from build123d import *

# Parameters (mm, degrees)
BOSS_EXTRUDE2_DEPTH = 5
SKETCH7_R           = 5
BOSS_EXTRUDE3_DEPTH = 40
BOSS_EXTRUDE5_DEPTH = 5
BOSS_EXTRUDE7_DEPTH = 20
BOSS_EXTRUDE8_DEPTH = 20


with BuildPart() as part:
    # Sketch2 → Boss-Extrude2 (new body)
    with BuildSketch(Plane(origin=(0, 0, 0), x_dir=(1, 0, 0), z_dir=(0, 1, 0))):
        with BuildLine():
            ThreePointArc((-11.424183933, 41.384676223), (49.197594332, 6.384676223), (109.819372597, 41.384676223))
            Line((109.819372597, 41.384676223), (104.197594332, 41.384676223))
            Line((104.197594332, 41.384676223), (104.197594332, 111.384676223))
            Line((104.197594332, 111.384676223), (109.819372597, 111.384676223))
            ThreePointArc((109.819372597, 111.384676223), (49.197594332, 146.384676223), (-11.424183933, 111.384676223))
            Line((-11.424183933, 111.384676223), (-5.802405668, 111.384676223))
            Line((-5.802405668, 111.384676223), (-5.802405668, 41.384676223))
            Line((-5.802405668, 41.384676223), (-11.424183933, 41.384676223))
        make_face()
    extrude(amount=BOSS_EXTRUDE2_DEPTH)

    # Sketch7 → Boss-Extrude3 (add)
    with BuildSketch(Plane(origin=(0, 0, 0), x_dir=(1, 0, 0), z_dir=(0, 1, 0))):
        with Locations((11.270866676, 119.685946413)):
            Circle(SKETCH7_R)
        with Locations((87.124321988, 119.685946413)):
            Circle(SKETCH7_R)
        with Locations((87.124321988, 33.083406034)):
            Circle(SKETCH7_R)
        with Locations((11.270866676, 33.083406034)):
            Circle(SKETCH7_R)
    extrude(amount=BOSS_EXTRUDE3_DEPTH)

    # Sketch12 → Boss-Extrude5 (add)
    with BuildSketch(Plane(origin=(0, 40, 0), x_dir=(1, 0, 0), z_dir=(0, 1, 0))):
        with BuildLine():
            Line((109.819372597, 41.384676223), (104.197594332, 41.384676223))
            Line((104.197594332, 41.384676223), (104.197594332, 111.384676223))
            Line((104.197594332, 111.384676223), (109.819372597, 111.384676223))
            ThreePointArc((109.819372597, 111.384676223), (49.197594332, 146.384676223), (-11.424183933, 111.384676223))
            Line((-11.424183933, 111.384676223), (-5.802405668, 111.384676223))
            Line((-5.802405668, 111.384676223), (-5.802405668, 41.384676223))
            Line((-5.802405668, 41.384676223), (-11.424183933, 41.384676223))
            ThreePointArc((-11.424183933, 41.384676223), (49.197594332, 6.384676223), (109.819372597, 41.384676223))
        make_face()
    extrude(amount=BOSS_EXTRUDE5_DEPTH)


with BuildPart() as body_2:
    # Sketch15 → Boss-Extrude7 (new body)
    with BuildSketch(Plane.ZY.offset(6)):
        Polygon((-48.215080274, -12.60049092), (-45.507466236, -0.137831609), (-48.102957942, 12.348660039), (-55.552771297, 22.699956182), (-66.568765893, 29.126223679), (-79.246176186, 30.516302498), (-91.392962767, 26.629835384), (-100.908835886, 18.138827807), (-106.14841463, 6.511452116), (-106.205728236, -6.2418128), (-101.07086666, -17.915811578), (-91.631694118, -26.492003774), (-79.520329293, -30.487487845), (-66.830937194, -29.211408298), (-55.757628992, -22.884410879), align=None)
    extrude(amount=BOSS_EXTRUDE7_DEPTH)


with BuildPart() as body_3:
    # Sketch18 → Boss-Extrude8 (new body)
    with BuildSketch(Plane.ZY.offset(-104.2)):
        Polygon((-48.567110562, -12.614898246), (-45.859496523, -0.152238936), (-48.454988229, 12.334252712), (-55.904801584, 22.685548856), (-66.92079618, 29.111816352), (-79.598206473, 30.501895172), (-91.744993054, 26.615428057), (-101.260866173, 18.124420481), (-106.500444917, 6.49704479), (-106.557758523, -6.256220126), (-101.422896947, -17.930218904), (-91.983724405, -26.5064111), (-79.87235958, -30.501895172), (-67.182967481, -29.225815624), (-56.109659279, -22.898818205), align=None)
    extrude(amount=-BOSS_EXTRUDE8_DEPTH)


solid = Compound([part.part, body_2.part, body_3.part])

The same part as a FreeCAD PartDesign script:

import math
import FreeCAD as App
import Part
import Sketcher
from FreeCAD import Vector
Q = App.Units.Quantity

doc = App.newDocument("Part")
body = doc.addObject("PartDesign::Body", "Body")

sketch1 = body.newObject("Sketcher::SketchObject", "Sketch")
sketch1.AttachmentSupport = (doc.getObject("XZ_Plane"), [""])
sketch1.MapMode = "FlatFace"
sketch1.addGeometry([
    Part.ArcOfCircle(Part.Circle(Vector(49.197594, -76.384676, 0), Vector(0, 0, 1), 70), math.radians(30), math.radians(150)),
    Part.LineSegment(Vector(109.819373, -41.384676, 0), Vector(104.197594, -41.384676, 0)),
    Part.LineSegment(Vector(104.197594, -41.384676, 0), Vector(104.197594, -111.384676, 0)),
    Part.LineSegment(Vector(104.197594, -111.384676, 0), Vector(109.819373, -111.384676, 0)),
    Part.ArcOfCircle(Part.Circle(Vector(49.197594, -76.384676, 0), Vector(0, 0, 1), 70), math.radians(-150), math.radians(-30)),
    Part.LineSegment(Vector(-11.424184, -111.384676, 0), Vector(-5.802406, -111.384676, 0)),
    Part.LineSegment(Vector(-5.802406, -111.384676, 0), Vector(-5.802406, -41.384676, 0)),
    Part.LineSegment(Vector(-5.802406, -41.384676, 0), Vector(-11.424184, -41.384676, 0)),
], False)
sketch1.addConstraint([
    Sketcher.Constraint("Coincident", 0, 1, 1, 1),
    Sketcher.Constraint("Coincident", 1, 2, 2, 1),
    Sketcher.Constraint("Coincident", 2, 2, 3, 1),
    Sketcher.Constraint("Coincident", 3, 2, 4, 2),
    Sketcher.Constraint("Coincident", 4, 1, 5, 1),
    Sketcher.Constraint("Coincident", 5, 2, 6, 1),
    Sketcher.Constraint("Coincident", 6, 2, 7, 1),
    Sketcher.Constraint("Coincident", 7, 2, 0, 2),
    Sketcher.Constraint("Horizontal", 1),
    Sketcher.Constraint("Vertical", 2),
    Sketcher.Constraint("Horizontal", 3),
    Sketcher.Constraint("Horizontal", 5),
    Sketcher.Constraint("Vertical", 6),
    Sketcher.Constraint("Horizontal", 7),
    Sketcher.Constraint("Coincident", 4, 3, 0, 3),
    Sketcher.Constraint("Equal", 0, 4),
    Sketcher.Constraint("Horizontal", 3, 2, 4, 1),
    Sketcher.Constraint("Horizontal", 1, 2, 6, 2),
    Sketcher.Constraint("Vertical", 0, 1, 3, 2),
    Sketcher.Constraint("Equal", 3, 5),
    Sketcher.Constraint("Radius", 0, Q("70 mm")),
    Sketcher.Constraint("DistanceY", 2, 2, 2, 1, Q("70 mm")),
    Sketcher.Constraint("DistanceX", 0, 3, 1, 2, Q("55 mm")),
    Sketcher.Constraint("DistanceX", -1, 1, 0, 3, Q("49.197594 mm")),
    Sketcher.Constraint("DistanceY", 0, 3, -1, 1, Q("76.384676 mm")),
])
pad1 = body.newObject("PartDesign::Pad", "Pad")
pad1.Profile = sketch1
pad1.Length = 5
pad1.Reversed = True

sketch2 = body.newObject("Sketcher::SketchObject", "Sketch001")
sketch2.AttachmentSupport = (doc.getObject("XZ_Plane"), [""])
sketch2.MapMode = "FlatFace"
sketch2.addGeometry([
    Part.Circle(Vector(11.270867, -119.685946, 0), Vector(0, 0, 1), 5),
    Part.Circle(Vector(87.124322, -119.685946, 0), Vector(0, 0, 1), 5),
    Part.Circle(Vector(87.124322, -33.083406, 0), Vector(0, 0, 1), 5),
    Part.Circle(Vector(11.270867, -33.083406, 0), Vector(0, 0, 1), 5),
], False)
sketch2.addConstraint([
    Sketcher.Constraint("Equal", 0, 1),
    Sketcher.Constraint("Equal", 1, 2),
    Sketcher.Constraint("Equal", 2, 3),
    Sketcher.Constraint("Horizontal", 0, 3, 1, 3),
    Sketcher.Constraint("Horizontal", 2, 3, 3, 3),
    Sketcher.Constraint("Vertical", 1, 3, 2, 3),
    Sketcher.Constraint("Vertical", 0, 3, 3, 3),
    Sketcher.Constraint("Diameter", 0, Q("10 mm")),
    Sketcher.Constraint("DistanceX", -1, 1, 1, 3, Q("87.124322 mm")),
    Sketcher.Constraint("DistanceY", 1, 3, 2, 3, Q("86.60254 mm")),
    Sketcher.Constraint("DistanceX", -1, 1, 0, 3, Q("11.270867 mm")),
    Sketcher.Constraint("DistanceY", 0, 3, -1, 1, Q("119.685946 mm")),
])
pad2 = body.newObject("PartDesign::Pad", "Pad001")
pad2.Profile = sketch2
pad2.Length = 40
pad2.Reversed = True

sketch3 = body.newObject("Sketcher::SketchObject", "Sketch002")
sketch3.AttachmentSupport = (doc.getObject("XZ_Plane"), [""])
sketch3.MapMode = "FlatFace"
sketch3.AttachmentOffset = App.Placement(Vector(0, 0, -40), App.Rotation())
sketch3.addGeometry([
    Part.LineSegment(Vector(109.819373, -41.384676, 0), Vector(104.197594, -41.384676, 0)),
    Part.LineSegment(Vector(104.197594, -41.384676, 0), Vector(104.197594, -111.384676, 0)),
    Part.LineSegment(Vector(104.197594, -111.384676, 0), Vector(109.819373, -111.384676, 0)),
    Part.ArcOfCircle(Part.Circle(Vector(49.197594, -76.384676, 0), Vector(0, 0, 1), 70), math.radians(-150), math.radians(-30)),
    Part.LineSegment(Vector(-11.424184, -111.384676, 0), Vector(-5.802406, -111.384676, 0)),
    Part.LineSegment(Vector(-5.802406, -111.384676, 0), Vector(-5.802406, -41.384676, 0)),
    Part.LineSegment(Vector(-5.802406, -41.384676, 0), Vector(-11.424184, -41.384676, 0)),
    Part.ArcOfCircle(Part.Circle(Vector(49.197594, -76.384676, 0), Vector(0, 0, 1), 70), math.radians(30), math.radians(150)),
], False)
sketch3.addConstraint([
    Sketcher.Constraint("Coincident", 0, 2, 1, 1),
    Sketcher.Constraint("Coincident", 1, 2, 2, 1),
    Sketcher.Constraint("Coincident", 2, 2, 3, 2),
    Sketcher.Constraint("Coincident", 3, 1, 4, 1),
    Sketcher.Constraint("Coincident", 4, 2, 5, 1),
    Sketcher.Constraint("Coincident", 5, 2, 6, 1),
    Sketcher.Constraint("Coincident", 6, 2, 7, 2),
    Sketcher.Constraint("Coincident", 7, 1, 0, 1),
    Sketcher.Constraint("Horizontal", 0),
    Sketcher.Constraint("Vertical", 1),
    Sketcher.Constraint("Horizontal", 2),
    Sketcher.Constraint("Horizontal", 4),
    Sketcher.Constraint("Vertical", 5),
    Sketcher.Constraint("Horizontal", 6),
    Sketcher.Constraint("Coincident", 7, 3, 3, 3),
    Sketcher.Constraint("Equal", 3, 7),
    Sketcher.Constraint("Horizontal", 2, 2, 3, 1),
    Sketcher.Constraint("Horizontal", 0, 2, 5, 2),
    Sketcher.Constraint("Vertical", 3, 1, 6, 2),
    Sketcher.Constraint("Equal", 2, 4),
    Sketcher.Constraint("Radius", 3, Q("70 mm")),
    Sketcher.Constraint("DistanceY", 1, 2, 1, 1, Q("70 mm")),
    Sketcher.Constraint("DistanceX", 3, 3, 0, 2, Q("55 mm")),
    Sketcher.Constraint("DistanceX", -1, 1, 3, 3, Q("49.197594 mm")),
    Sketcher.Constraint("DistanceY", 3, 3, -1, 1, Q("76.384676 mm")),
])
pad3 = body.newObject("PartDesign::Pad", "Pad002")
pad3.Profile = sketch3
pad3.Length = 5
pad3.Reversed = True
body2 = doc.addObject("PartDesign::Body", "Body001")

sketch4 = body2.newObject("Sketcher::SketchObject", "Sketch003")
sketch4.AttachmentSupport = (doc.getObject("YZ_Plane001"), [""])
sketch4.MapMode = "FlatFace"
sketch4.AttachmentOffset = App.Placement(Vector(0, 0, -6), App.Rotation())
sketch4.addGeometry([
    Part.LineSegment(Vector(-12.600491, -48.21508, 0), Vector(-0.137832, -45.507466, 0)),
    Part.LineSegment(Vector(-0.137832, -45.507466, 0), Vector(12.34866, -48.102958, 0)),
    Part.LineSegment(Vector(12.34866, -48.102958, 0), Vector(22.699956, -55.552771, 0)),
    Part.LineSegment(Vector(22.699956, -55.552771, 0), Vector(29.126224, -66.568766, 0)),
    Part.LineSegment(Vector(29.126224, -66.568766, 0), Vector(30.516302, -79.246176, 0)),
    Part.LineSegment(Vector(30.516302, -79.246176, 0), Vector(26.629835, -91.392963, 0)),
    Part.LineSegment(Vector(26.629835, -91.392963, 0), Vector(18.138828, -100.908836, 0)),
    Part.LineSegment(Vector(18.138828, -100.908836, 0), Vector(6.511452, -106.148415, 0)),
    Part.LineSegment(Vector(6.511452, -106.148415, 0), Vector(-6.241813, -106.205728, 0)),
    Part.LineSegment(Vector(-6.241813, -106.205728, 0), Vector(-17.915812, -101.070867, 0)),
    Part.LineSegment(Vector(-17.915812, -101.070867, 0), Vector(-26.492004, -91.631694, 0)),
    Part.LineSegment(Vector(-26.492004, -91.631694, 0), Vector(-30.487488, -79.520329, 0)),
    Part.LineSegment(Vector(-30.487488, -79.520329, 0), Vector(-29.211408, -66.830937, 0)),
    Part.LineSegment(Vector(-29.211408, -66.830937, 0), Vector(-22.884411, -55.757629, 0)),
    Part.LineSegment(Vector(-22.884411, -55.757629, 0), Vector(-12.600491, -48.21508, 0)),
], False)
sketch4.addConstraint([
    Sketcher.Constraint("Coincident", 0, 2, 1, 1),
    Sketcher.Constraint("Coincident", 1, 2, 2, 1),
    Sketcher.Constraint("Coincident", 2, 2, 3, 1),
    Sketcher.Constraint("Coincident", 3, 2, 4, 1),
    Sketcher.Constraint("Coincident", 4, 2, 5, 1),
    Sketcher.Constraint("Coincident", 5, 2, 6, 1),
    Sketcher.Constraint("Coincident", 6, 2, 7, 1),
    Sketcher.Constraint("Coincident", 7, 2, 8, 1),
    Sketcher.Constraint("Coincident", 8, 2, 9, 1),
    Sketcher.Constraint("Coincident", 9, 2, 10, 1),
    Sketcher.Constraint("Coincident", 10, 2, 11, 1),
    Sketcher.Constraint("Coincident", 11, 2, 12, 1),
    Sketcher.Constraint("Coincident", 12, 2, 13, 1),
    Sketcher.Constraint("Coincident", 13, 2, 14, 1),
    Sketcher.Constraint("Coincident", 14, 2, 0, 1),
    Sketcher.Constraint("Equal", 0, 1),
    Sketcher.Constraint("Equal", 1, 2),
    Sketcher.Constraint("Equal", 2, 3),
    Sketcher.Constraint("Equal", 3, 4),
    Sketcher.Constraint("Equal", 4, 5),
    Sketcher.Constraint("Equal", 5, 6),
    Sketcher.Constraint("Equal", 6, 7),
    Sketcher.Constraint("Equal", 7, 8),
    Sketcher.Constraint("Equal", 8, 9),
    Sketcher.Constraint("Equal", 9, 10),
    Sketcher.Constraint("Equal", 10, 11),
    Sketcher.Constraint("Equal", 11, 12),
    Sketcher.Constraint("Equal", 12, 13),
    Sketcher.Constraint("Equal", 13, 14),
    Sketcher.Constraint("DistanceX", 9, 2, 8, 2, Q("11.673999 mm")),
    Sketcher.Constraint("DistanceY", 3, 2, 0, 2, Q("21.0613 mm")),
    Sketcher.Constraint("DistanceY", 8, 2, 11, 2, Q("26.685399 mm")),
    Sketcher.Constraint("DistanceY", 11, 2, 13, 2, Q("23.7627 mm")),
    Sketcher.Constraint("DistanceX", 0, 2, -1, 1, Q("0.137832 mm")),
    Sketcher.Constraint("DistanceX", -1, 1, 1, 2, Q("12.34866 mm")),
    Sketcher.Constraint("DistanceY", 2, 2, -1, 1, Q("55.552771 mm")),
    Sketcher.Constraint("DistanceY", 8, 2, -1, 1, Q("106.205728 mm")),
    Sketcher.Constraint("DistanceX", 9, 2, -1, 1, Q("17.915812 mm")),
    Sketcher.Constraint("DistanceX", 12, 2, -1, 1, Q("29.211408 mm")),
    Sketcher.Constraint("DistanceX", 13, 2, -1, 1, Q("22.884411 mm")),
    Sketcher.Constraint("DistanceX", 14, 2, -1, 1, Q("12.600491 mm")),
    Sketcher.Constraint("DistanceY", 14, 2, -1, 1, Q("48.21508 mm")),
    Sketcher.Constraint("DistanceX", 3, 2, 4, 2, Q("1.390079 mm")),
    Sketcher.Constraint("DistanceX", 5, 2, 3, 2, Q("2.496388 mm")),
    Sketcher.Constraint("DistanceY", 6, 2, 4, 2, Q("21.66266 mm")),
])
pad4 = body2.newObject("PartDesign::Pad", "Pad003")
pad4.Profile = sketch4
pad4.Length = 20
pad4.Reversed = True
body3 = doc.addObject("PartDesign::Body", "Body002")

sketch5 = body3.newObject("Sketcher::SketchObject", "Sketch004")
sketch5.AttachmentSupport = (doc.getObject("YZ_Plane002"), [""])
sketch5.MapMode = "FlatFace"
sketch5.AttachmentOffset = App.Placement(Vector(0, 0, 104.2), App.Rotation())
sketch5.addGeometry([
    Part.LineSegment(Vector(-12.614898, -48.567111, 0), Vector(-0.152239, -45.859497, 0)),
    Part.LineSegment(Vector(-0.152239, -45.859497, 0), Vector(12.334253, -48.454988, 0)),
    Part.LineSegment(Vector(12.334253, -48.454988, 0), Vector(22.685549, -55.904802, 0)),
    Part.LineSegment(Vector(22.685549, -55.904802, 0), Vector(29.111816, -66.920796, 0)),
    Part.LineSegment(Vector(29.111816, -66.920796, 0), Vector(30.501895, -79.598206, 0)),
    Part.LineSegment(Vector(30.501895, -79.598206, 0), Vector(26.615428, -91.744993, 0)),
    Part.LineSegment(Vector(26.615428, -91.744993, 0), Vector(18.12442, -101.260866, 0)),
    Part.LineSegment(Vector(18.12442, -101.260866, 0), Vector(6.497045, -106.500445, 0)),
    Part.LineSegment(Vector(6.497045, -106.500445, 0), Vector(-6.25622, -106.557759, 0)),
    Part.LineSegment(Vector(-6.25622, -106.557759, 0), Vector(-17.930219, -101.422897, 0)),
    Part.LineSegment(Vector(-17.930219, -101.422897, 0), Vector(-26.506411, -91.983724, 0)),
    Part.LineSegment(Vector(-26.506411, -91.983724, 0), Vector(-30.501895, -79.87236, 0)),
    Part.LineSegment(Vector(-30.501895, -79.87236, 0), Vector(-29.225816, -67.182967, 0)),
    Part.LineSegment(Vector(-29.225816, -67.182967, 0), Vector(-22.898818, -56.109659, 0)),
    Part.LineSegment(Vector(-22.898818, -56.109659, 0), Vector(-12.614898, -48.567111, 0)),
], False)
sketch5.addConstraint([
    Sketcher.Constraint("Coincident", 0, 2, 1, 1),
    Sketcher.Constraint("Coincident", 1, 2, 2, 1),
    Sketcher.Constraint("Coincident", 2, 2, 3, 1),
    Sketcher.Constraint("Coincident", 3, 2, 4, 1),
    Sketcher.Constraint("Coincident", 4, 2, 5, 1),
    Sketcher.Constraint("Coincident", 5, 2, 6, 1),
    Sketcher.Constraint("Coincident", 6, 2, 7, 1),
    Sketcher.Constraint("Coincident", 7, 2, 8, 1),
    Sketcher.Constraint("Coincident", 8, 2, 9, 1),
    Sketcher.Constraint("Coincident", 9, 2, 10, 1),
    Sketcher.Constraint("Coincident", 10, 2, 11, 1),
    Sketcher.Constraint("Coincident", 11, 2, 12, 1),
    Sketcher.Constraint("Coincident", 12, 2, 13, 1),
    Sketcher.Constraint("Coincident", 13, 2, 14, 1),
    Sketcher.Constraint("Coincident", 14, 2, 0, 1),
    Sketcher.Constraint("Equal", 0, 1),
    Sketcher.Constraint("Equal", 1, 2),
    Sketcher.Constraint("Equal", 2, 3),
    Sketcher.Constraint("Equal", 3, 4),
    Sketcher.Constraint("Equal", 4, 5),
    Sketcher.Constraint("Equal", 5, 6),
    Sketcher.Constraint("Equal", 6, 7),
    Sketcher.Constraint("Equal", 7, 8),
    Sketcher.Constraint("Equal", 8, 9),
    Sketcher.Constraint("Equal", 9, 10),
    Sketcher.Constraint("Equal", 10, 11),
    Sketcher.Constraint("Equal", 11, 12),
    Sketcher.Constraint("Equal", 12, 13),
    Sketcher.Constraint("Equal", 13, 14),
    Sketcher.Constraint("DistanceX", 9, 2, 8, 2, Q("11.673999 mm")),
    Sketcher.Constraint("DistanceY", 2, 2, -1, 1, Q("55.904802 mm")),
    Sketcher.Constraint("DistanceX", 14, 2, -1, 1, Q("12.614898 mm")),
    Sketcher.Constraint("DistanceY", 3, 2, 0, 2, Q("21.0613 mm")),
    Sketcher.Constraint("DistanceY", 8, 2, 11, 2, Q("26.685399 mm")),
    Sketcher.Constraint("DistanceY", 11, 2, 13, 2, Q("23.7627 mm")),
    Sketcher.Constraint("DistanceX", 0, 2, -1, 1, Q("0.152239 mm")),
    Sketcher.Constraint("DistanceY", 1, 2, -1, 1, Q("48.454988 mm")),
    Sketcher.Constraint("DistanceX", -1, 1, 2, 2, Q("22.685549 mm")),
    Sketcher.Constraint("DistanceX", -1, 1, 5, 2, Q("26.615428 mm")),
    Sketcher.Constraint("DistanceX", -1, 1, 6, 2, Q("18.12442 mm")),
    Sketcher.Constraint("DistanceX", 8, 2, -1, 1, Q("6.25622 mm")),
    Sketcher.Constraint("DistanceY", 8, 2, -1, 1, Q("106.557759 mm")),
    Sketcher.Constraint("DistanceX", 10, 2, -1, 1, Q("26.506411 mm")),
    Sketcher.Constraint("DistanceX", 13, 2, -1, 1, Q("22.898818 mm")),
    Sketcher.Constraint("DistanceX", 3, 2, 4, 2, Q("1.390079 mm")),
])
pad5 = body3.newObject("PartDesign::Pad", "Pad004")
pad5.Profile = sketch5
pad5.Length = 20

doc.recompute()
